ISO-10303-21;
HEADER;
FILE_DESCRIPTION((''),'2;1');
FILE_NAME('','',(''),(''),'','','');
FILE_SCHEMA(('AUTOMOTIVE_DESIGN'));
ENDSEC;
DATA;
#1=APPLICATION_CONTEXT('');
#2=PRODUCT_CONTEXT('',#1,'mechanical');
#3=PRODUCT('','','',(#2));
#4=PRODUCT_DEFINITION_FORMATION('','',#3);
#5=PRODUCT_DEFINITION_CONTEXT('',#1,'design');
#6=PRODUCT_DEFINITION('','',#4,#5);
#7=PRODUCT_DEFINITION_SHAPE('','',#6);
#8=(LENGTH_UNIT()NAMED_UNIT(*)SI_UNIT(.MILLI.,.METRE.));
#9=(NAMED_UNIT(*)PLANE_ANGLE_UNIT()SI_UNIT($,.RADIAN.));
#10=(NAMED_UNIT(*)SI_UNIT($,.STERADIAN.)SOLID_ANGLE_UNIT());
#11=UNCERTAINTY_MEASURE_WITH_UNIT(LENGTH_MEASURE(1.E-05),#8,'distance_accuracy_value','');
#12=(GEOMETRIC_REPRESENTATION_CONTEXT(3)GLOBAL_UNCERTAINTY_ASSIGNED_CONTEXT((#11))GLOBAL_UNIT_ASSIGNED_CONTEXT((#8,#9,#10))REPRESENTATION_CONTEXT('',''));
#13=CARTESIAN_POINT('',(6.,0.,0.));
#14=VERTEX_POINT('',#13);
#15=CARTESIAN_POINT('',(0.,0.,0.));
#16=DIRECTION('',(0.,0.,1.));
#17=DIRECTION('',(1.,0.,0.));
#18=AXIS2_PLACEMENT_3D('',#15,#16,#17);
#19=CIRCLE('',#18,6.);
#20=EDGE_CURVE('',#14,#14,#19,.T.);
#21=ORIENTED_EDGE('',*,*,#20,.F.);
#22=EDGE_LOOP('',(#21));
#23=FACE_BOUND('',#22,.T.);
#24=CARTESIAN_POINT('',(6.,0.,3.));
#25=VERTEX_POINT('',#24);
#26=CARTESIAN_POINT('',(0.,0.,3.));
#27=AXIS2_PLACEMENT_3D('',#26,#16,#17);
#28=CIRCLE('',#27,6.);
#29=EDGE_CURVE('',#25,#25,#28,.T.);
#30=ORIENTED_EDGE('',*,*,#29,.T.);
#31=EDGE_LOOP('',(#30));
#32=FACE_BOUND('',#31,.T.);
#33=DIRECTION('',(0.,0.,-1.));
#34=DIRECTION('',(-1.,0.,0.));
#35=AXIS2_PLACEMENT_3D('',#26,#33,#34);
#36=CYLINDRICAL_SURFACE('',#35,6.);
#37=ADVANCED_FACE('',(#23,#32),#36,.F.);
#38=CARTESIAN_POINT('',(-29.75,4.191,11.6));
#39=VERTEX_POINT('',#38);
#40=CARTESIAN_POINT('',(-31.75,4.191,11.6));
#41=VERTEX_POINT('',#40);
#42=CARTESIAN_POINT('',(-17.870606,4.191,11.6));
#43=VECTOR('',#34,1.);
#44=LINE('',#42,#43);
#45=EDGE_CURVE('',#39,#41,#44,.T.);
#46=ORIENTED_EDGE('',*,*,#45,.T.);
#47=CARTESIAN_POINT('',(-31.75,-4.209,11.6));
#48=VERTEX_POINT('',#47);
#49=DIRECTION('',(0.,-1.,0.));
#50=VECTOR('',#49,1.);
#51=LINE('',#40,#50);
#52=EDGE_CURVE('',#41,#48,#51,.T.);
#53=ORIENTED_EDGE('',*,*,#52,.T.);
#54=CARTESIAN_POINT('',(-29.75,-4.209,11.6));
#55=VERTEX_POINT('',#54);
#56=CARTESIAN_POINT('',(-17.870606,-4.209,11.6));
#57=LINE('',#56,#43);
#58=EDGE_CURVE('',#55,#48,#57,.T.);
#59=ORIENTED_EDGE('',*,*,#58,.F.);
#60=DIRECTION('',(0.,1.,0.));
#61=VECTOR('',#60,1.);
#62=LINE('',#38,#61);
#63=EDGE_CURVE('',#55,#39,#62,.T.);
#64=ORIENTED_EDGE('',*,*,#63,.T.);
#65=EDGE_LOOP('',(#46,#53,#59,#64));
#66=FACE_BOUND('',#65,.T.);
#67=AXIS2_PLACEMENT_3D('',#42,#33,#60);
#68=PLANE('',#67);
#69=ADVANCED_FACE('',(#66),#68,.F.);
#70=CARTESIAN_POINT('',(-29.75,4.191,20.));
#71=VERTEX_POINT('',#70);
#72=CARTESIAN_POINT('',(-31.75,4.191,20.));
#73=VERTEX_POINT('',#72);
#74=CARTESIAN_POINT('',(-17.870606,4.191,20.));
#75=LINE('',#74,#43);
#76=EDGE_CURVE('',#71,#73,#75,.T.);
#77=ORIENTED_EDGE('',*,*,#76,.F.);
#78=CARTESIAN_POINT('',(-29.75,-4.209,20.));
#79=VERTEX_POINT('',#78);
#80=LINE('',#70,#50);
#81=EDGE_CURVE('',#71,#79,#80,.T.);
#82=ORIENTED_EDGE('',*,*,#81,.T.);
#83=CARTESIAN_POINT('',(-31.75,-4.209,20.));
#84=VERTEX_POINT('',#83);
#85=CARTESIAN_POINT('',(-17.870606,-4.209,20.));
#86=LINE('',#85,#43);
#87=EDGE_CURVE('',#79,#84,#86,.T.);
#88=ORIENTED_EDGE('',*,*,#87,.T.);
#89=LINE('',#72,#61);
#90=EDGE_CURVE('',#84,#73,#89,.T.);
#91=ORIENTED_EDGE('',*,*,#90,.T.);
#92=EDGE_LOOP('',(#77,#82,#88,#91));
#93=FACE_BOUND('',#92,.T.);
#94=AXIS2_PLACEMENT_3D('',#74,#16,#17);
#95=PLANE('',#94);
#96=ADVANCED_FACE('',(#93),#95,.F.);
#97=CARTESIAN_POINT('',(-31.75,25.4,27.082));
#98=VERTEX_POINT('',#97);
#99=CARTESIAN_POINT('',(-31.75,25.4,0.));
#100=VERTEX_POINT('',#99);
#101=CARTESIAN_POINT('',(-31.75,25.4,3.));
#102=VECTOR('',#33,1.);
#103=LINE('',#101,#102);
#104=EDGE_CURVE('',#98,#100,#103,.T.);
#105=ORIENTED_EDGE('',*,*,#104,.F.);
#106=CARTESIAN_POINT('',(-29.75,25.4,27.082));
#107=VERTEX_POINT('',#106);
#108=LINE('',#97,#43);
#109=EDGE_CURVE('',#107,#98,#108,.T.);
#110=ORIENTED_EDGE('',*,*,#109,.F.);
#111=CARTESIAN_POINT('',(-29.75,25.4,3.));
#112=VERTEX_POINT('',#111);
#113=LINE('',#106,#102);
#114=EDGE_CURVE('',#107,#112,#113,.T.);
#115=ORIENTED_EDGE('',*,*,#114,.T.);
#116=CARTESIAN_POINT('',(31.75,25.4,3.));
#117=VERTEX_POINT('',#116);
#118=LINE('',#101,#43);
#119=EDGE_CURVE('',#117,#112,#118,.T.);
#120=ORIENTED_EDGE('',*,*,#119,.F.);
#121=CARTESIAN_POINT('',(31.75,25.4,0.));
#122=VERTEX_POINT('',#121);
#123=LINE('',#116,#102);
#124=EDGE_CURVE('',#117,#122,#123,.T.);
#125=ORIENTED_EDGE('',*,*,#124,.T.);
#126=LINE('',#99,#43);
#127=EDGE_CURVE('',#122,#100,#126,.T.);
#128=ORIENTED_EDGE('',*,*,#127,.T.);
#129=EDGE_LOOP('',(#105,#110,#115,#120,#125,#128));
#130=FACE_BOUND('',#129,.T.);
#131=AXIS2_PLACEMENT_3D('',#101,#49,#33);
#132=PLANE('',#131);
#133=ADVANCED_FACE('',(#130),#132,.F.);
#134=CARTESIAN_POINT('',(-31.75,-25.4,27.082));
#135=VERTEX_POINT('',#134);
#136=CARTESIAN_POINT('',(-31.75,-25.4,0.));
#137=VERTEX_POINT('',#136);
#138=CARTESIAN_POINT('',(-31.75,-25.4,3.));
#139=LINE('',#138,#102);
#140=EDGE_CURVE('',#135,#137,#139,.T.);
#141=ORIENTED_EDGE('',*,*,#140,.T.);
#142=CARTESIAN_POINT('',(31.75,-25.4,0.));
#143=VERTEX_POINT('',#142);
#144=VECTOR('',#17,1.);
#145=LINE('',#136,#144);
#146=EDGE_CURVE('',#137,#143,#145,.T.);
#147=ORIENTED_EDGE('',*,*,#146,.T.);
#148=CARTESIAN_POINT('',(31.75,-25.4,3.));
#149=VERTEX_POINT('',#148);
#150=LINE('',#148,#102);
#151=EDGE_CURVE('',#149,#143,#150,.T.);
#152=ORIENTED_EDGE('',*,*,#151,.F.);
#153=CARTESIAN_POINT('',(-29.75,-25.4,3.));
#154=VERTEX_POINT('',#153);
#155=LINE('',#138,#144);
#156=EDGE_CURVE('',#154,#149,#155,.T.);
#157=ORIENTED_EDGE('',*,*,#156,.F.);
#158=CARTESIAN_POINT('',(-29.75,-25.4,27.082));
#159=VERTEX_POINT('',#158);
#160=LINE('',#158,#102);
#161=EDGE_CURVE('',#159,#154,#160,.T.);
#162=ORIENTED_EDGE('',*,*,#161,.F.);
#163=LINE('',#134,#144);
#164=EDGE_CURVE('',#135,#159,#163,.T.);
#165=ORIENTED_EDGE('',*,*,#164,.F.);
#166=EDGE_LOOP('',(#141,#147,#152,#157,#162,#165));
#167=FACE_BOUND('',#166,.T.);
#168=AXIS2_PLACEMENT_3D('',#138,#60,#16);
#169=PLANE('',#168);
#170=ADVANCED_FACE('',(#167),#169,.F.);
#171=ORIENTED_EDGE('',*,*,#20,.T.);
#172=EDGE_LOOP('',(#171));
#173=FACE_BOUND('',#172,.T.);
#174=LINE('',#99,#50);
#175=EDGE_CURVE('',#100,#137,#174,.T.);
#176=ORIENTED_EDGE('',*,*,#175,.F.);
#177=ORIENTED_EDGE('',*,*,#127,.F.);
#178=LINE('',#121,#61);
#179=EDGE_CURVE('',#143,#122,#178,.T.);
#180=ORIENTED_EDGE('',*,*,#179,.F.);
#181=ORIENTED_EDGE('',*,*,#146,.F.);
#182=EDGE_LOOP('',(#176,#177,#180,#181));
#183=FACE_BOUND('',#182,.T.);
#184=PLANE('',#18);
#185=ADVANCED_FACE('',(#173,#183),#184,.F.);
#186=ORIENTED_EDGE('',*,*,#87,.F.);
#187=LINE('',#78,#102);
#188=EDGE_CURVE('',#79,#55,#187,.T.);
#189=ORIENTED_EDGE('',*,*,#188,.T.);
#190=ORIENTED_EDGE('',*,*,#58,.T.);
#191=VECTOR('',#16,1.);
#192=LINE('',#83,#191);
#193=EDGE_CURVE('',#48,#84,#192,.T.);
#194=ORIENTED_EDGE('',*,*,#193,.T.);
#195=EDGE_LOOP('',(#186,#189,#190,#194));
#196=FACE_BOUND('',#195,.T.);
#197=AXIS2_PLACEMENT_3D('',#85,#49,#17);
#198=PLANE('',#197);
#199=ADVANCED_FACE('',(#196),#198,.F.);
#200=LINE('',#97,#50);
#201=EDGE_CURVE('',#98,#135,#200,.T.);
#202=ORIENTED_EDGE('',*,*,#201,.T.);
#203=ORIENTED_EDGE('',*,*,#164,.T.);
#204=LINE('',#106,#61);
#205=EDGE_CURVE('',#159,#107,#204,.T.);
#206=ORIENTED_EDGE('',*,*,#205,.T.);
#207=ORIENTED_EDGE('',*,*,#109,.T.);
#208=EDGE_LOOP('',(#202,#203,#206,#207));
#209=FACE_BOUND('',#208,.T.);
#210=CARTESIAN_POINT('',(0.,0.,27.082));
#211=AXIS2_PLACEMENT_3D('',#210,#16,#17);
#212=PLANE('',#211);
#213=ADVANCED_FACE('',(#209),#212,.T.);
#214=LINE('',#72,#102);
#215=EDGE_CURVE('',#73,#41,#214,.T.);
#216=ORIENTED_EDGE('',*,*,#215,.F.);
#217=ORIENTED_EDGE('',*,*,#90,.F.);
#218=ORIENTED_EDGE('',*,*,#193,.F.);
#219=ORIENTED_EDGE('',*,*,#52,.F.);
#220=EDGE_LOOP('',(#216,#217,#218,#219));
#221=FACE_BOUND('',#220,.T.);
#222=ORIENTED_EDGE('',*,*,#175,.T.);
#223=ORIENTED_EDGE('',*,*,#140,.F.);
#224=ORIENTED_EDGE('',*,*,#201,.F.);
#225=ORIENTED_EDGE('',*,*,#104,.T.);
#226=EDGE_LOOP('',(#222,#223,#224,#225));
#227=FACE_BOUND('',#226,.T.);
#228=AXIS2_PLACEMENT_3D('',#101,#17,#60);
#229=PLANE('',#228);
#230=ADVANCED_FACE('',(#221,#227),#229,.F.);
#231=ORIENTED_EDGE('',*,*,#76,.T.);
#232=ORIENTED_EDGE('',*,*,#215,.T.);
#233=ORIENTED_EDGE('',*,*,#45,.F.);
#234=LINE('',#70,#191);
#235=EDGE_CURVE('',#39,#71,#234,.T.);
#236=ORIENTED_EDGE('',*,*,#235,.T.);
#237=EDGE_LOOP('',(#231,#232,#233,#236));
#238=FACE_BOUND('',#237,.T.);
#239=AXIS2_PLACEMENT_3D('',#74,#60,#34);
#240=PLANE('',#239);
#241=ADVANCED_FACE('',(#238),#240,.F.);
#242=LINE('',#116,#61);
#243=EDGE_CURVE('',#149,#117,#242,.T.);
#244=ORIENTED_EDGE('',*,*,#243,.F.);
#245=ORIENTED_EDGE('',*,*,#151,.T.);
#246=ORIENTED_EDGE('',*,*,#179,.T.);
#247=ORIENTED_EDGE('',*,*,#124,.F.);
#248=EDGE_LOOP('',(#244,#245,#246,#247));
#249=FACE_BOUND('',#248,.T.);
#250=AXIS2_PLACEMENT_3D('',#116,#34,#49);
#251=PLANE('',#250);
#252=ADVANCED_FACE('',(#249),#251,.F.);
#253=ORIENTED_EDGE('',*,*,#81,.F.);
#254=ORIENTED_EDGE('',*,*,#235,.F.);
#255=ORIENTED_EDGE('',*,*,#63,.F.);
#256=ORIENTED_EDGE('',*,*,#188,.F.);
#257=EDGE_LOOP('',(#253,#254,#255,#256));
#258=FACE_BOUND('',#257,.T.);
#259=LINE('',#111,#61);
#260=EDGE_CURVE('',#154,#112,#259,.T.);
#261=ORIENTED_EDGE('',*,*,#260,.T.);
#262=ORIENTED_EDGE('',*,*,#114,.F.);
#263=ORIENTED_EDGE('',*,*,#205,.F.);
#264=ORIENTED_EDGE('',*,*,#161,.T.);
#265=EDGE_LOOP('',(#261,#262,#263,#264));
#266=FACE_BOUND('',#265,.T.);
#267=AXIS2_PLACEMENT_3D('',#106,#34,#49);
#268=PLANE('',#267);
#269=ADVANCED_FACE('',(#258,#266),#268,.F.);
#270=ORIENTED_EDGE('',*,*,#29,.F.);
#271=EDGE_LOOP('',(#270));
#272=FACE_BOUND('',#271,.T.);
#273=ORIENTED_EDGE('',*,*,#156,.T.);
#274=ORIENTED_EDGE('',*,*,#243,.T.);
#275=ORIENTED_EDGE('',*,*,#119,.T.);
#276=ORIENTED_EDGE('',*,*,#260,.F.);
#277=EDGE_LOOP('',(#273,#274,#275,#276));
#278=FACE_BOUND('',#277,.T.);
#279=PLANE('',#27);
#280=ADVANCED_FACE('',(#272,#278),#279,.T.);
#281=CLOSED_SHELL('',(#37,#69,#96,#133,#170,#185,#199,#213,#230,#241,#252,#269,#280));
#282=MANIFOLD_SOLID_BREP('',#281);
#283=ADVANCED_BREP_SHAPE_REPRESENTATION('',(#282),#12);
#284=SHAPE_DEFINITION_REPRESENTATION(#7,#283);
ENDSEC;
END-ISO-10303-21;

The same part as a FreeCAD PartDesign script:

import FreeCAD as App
import Part
import Sketcher
Q = App.Units.Quantity

doc = App.newDocument("Part")
body = doc.addObject("PartDesign::Body", "Body")

# Sketch on XY plane
sketch1 = body.newObject("Sketcher::SketchObject", "Sketch")
sketch1.AttachmentSupport = (doc.getObject("XY_Plane"), [""])
sketch1.MapMode = "FlatFace"
sketch1.addGeometry(Part.LineSegment(App.Vector(-32, 25, 0), App.Vector(-32, -25, 0)), False)
sketch1.addGeometry(Part.LineSegment(App.Vector(-32, -25, 0), App.Vector(32, -25, 0)), False)
sketch1.addGeometry(Part.LineSegment(App.Vector(32, -25, 0), App.Vector(32, 25, 0)), False)
sketch1.addGeometry(Part.LineSegment(App.Vector(32, 25, 0), App.Vector(-32, 25, 0)), False)
sketch1.addGeometry(Part.Circle(App.Vector(0, 0, 0), App.Vector(0, 0, 1), 6), False)
sketch1.addConstraint(Sketcher.Constraint("Coincident", 0, 2, 1, 1))
sketch1.addConstraint(Sketcher.Constraint("Coincident", 1, 2, 2, 1))
sketch1.addConstraint(Sketcher.Constraint("Coincident", 2, 2, 3, 1))
sketch1.addConstraint(Sketcher.Constraint("Coincident", 3, 2, 0, 1))
sketch1.addConstraint(Sketcher.Constraint("Vertical", 0))
sketch1.addConstraint(Sketcher.Constraint("Horizontal", 1))
sketch1.addConstraint(Sketcher.Constraint("Vertical", 2))
sketch1.addConstraint(Sketcher.Constraint("Horizontal", 3))
sketch1.addConstraint(Sketcher.Constraint("Coincident", 4, 3, -1, 1))
sketch1.addConstraint(Sketcher.Constraint("Symmetric", 0, 2, 2, 2, -1, 1))
sketch1.addConstraint(Sketcher.Constraint("Diameter", 4, Q("12 mm")))
sketch1.addConstraint(Sketcher.Constraint("DistanceX", 1, 1, 1, 2, Q("63.5 mm")))
sketch1.addConstraint(Sketcher.Constraint("DistanceY", 0, 2, 0, 1, Q("50.8 mm")))
pad1 = body.newObject("PartDesign::Pad", "Pad")
pad1.Profile = sketch1
pad1.Length = 3

# Sketch on XY plane
sketch2 = body.newObject("Sketcher::SketchObject", "Sketch001")
sketch2.AttachmentSupport = (doc.getObject("XY_Plane"), [""])
sketch2.MapMode = "FlatFace"
sketch2.AttachmentOffset = App.Placement(App.Vector(0, 0, 3), App.Rotation())
sketch2.addGeometry(Part.LineSegment(App.Vector(-31.8, 25.4, 0), App.Vector(-31.8, -25.4, 0)), False)
sketch2.addGeometry(Part.LineSegment(App.Vector(-31.8, -25.4, 0), App.Vector(-29.8, -25.4, 0)), False)
sketch2.addGeometry(Part.LineSegment(App.Vector(-29.8, -25.4, 0), App.Vector(-29.8, 25.4, 0)), False)
sketch2.addGeometry(Part.LineSegment(App.Vector(-29.8, 25.4, 0), App.Vector(-31.8, 25.4, 0)), False)
sketch2.addConstraint(Sketcher.Constraint("Coincident", 0, 2, 1, 1))
sketch2.addConstraint(Sketcher.Constraint("Coincident", 1, 2, 2, 1))
sketch2.addConstraint(Sketcher.Constraint("Coincident", 2, 2, 3, 1))
sketch2.addConstraint(Sketcher.Constraint("Coincident", 3, 2, 0, 1))
sketch2.addConstraint(Sketcher.Constraint("Vertical", 0))
sketch2.addConstraint(Sketcher.Constraint("Horizontal", 1))
sketch2.addConstraint(Sketcher.Constraint("Vertical", 2))
sketch2.addConstraint(Sketcher.Constraint("Horizontal", 3))
sketch2.addConstraint(Sketcher.Constraint("DistanceX", 1, 1, 1, 2, Q("2 mm")))
sketch2.addConstraint(Sketcher.Constraint("DistanceY", 0, 2, 0, 1, Q("50.8 mm")))
sketch2.addConstraint(Sketcher.Constraint("DistanceY", 0, 2, -1, 1, Q("25.4 mm")))
sketch2.addConstraint(Sketcher.Constraint("DistanceX", 0, 2, -1, 1, Q("31.75 mm")))
pad2 = body.newObject("PartDesign::Pad", "Pad001")
pad2.Profile = sketch2
pad2.Length = 24.082

# Sketch on YZ plane
sketch3 = body.newObject("Sketcher::SketchObject", "Sketch002")
sketch3.AttachmentSupport = (doc.getObject("YZ_Plane"), [""])
sketch3.MapMode = "FlatFace"
sketch3.AttachmentOffset = App.Placement(App.Vector(0, 0, -31.75), App.Rotation())
sketch3.addGeometry(Part.LineSegment(App.Vector(4, 12, 0), App.Vector(-4, 12, 0)), False)
sketch3.addGeometry(Part.LineSegment(App.Vector(-4, 12, 0), App.Vector(-4, 20, 0)), False)
sketch3.addGeometry(Part.LineSegment(App.Vector(-4, 20, 0), App.Vector(4, 20, 0)), False)
sketch3.addGeometry(Part.LineSegment(App.Vector(4, 20, 0), App.Vector(4, 12, 0)), False)
sketch3.addConstraint(Sketcher.Constraint("Coincident", 0, 2, 1, 1))
sketch3.addConstraint(Sketcher.Constraint("Coincident", 1, 2, 2, 1))
sketch3.addConstraint(Sketcher.Constraint("Coincident", 2, 2, 3, 1))
sketch3.addConstraint(Sketcher.Constraint("Coincident", 3, 2, 0, 1))
sketch3.addConstraint(Sketcher.Constraint("Horizontal", 0))
sketch3.addConstraint(Sketcher.Constraint("Vertical", 1))
sketch3.addConstraint(Sketcher.Constraint("Horizontal", 2))
sketch3.addConstraint(Sketcher.Constraint("Vertical", 3))
sketch3.addConstraint(Sketcher.Constraint("Equal", 2, 1))
sketch3.addConstraint(Sketcher.Constraint("DistanceX", 0, 2, 0, 1, Q("8.4 mm")))
sketch3.addConstraint(Sketcher.Constraint("DistanceY", -1, 1, 1, 2, Q("20 mm")))
sketch3.addConstraint(Sketcher.Constraint("DistanceX", 0, 2, -1, 1, Q("4.209 mm")))
pocket1 = body.newObject("PartDesign::Pocket", "Pocket")
pocket1.Profile = sketch3
pocket1.Length = 2
pocket1.Reversed = True

doc.recompute()
